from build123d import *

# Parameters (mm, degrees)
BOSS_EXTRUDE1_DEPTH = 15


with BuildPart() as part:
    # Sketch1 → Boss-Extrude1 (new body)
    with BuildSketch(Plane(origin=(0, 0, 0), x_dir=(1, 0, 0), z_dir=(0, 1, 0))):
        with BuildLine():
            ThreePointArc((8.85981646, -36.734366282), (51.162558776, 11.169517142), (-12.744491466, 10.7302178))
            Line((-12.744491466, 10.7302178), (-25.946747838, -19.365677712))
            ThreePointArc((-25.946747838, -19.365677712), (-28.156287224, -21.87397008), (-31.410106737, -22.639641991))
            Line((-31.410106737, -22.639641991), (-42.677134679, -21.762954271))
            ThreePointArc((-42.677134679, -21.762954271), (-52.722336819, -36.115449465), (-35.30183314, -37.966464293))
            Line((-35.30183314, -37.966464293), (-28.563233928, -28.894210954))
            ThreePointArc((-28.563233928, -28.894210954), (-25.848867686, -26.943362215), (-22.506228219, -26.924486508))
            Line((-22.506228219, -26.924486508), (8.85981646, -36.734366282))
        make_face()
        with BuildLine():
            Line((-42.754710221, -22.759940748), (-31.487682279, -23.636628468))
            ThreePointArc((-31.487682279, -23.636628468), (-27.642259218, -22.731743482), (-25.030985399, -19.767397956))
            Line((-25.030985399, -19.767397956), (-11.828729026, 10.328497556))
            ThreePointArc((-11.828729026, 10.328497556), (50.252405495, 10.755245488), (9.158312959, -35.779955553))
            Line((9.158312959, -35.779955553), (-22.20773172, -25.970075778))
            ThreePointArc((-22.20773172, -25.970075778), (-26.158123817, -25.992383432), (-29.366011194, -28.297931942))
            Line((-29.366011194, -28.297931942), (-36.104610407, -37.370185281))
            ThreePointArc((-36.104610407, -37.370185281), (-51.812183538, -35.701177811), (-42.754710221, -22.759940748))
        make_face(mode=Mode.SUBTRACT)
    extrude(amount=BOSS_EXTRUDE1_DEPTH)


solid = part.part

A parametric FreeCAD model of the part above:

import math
import FreeCAD as App
import Part
import Sketcher
from FreeCAD import Vector
Q = App.Units.Quantity

doc = App.newDocument("Part")
body = doc.addObject("PartDesign::Body", "Body")

# Sketch on XZ plane
sketch1 = body.newObject("Sketcher::SketchObject", "Sketch")
sketch1.AttachmentSupport = (doc.getObject("XZ_Plane"), [""])
sketch1.MapMode = "FlatFace"
sketch1.addGeometry([
    Part.ArcOfCircle(Part.Circle(Vector(19, 3, 0), Vector(0, 0, 1), 35), math.radians(-156), math.radians(107)),  # 0
    Part.LineSegment(Vector(-13, -11, 0), Vector(-26, 19, 0)),  # 1
    Part.ArcOfCircle(Part.Circle(Vector(-31, 17, 0), Vector(0, 0, 1), 6), math.radians(24), math.radians(94)),  # 2
    Part.LineSegment(Vector(-31, 23, 0), Vector(-43, 22, 0)),  # 3
    Part.ArcOfCircle(Part.Circle(Vector(-43, 32, 0), Vector(0, 0, 1), 10), math.radians(37), math.radians(274)),  # 4
    Part.LineSegment(Vector(-35, 38, 0), Vector(-29, 29, 0)),  # 5
    Part.ArcOfCircle(Part.Circle(Vector(-24, 32, 0), Vector(0, 0, 1), 5), math.radians(-143), math.radians(-73)),  # 6
    Part.LineSegment(Vector(-23, 27, 0), Vector(9, 37, 0)),  # 7
    Part.ArcOfCircle(Part.Circle(Vector(-43, 32, 0), Vector(0, 0, 1), 9), math.radians(37), math.radians(274)),  # 8
    Part.LineSegment(Vector(-43, 23, 0), Vector(-31, 24, 0)),  # 9
    Part.ArcOfCircle(Part.Circle(Vector(-31, 17, 0), Vector(0, 0, 1), 6), math.radians(24), math.radians(94)),  # 10
    Part.LineSegment(Vector(-25, 20, 0), Vector(-12, -10, 0)),  # 11
    Part.ArcOfCircle(Part.Circle(Vector(19, 3, 0), Vector(0, 0, 1), 34), math.radians(-156), math.radians(107)),  # 12
    Part.LineSegment(Vector(9, 36, 0), Vector(-22, 26, 0)),  # 13
    Part.ArcOfCircle(Part.Circle(Vector(-24, 32, 0), Vector(0, 0, 1), 6), math.radians(-143), math.radians(-73)),  # 14
    Part.LineSegment(Vector(-29, 28, 0), Vector(-36, 37, 0)),  # 15
], False)
sketch1.addConstraint([
    Sketcher.Constraint("Tangent", 0, 1, 1, 1),
    Sketcher.Constraint("Tangent", 1, 2, 2, 1),
    Sketcher.Constraint("Tangent", 2, 2, 3, 1),
    Sketcher.Constraint("Tangent", 3, 2, 4, 2),
    Sketcher.Constraint("Tangent", 4, 1, 5, 1),
    Sketcher.Constraint("Tangent", 5, 2, 6, 1),
    Sketcher.Constraint("Tangent", 6, 2, 7, 1),
    Sketcher.Constraint("Tangent", 7, 2, 0, 2),
    Sketcher.Constraint("Tangent", 8, 2, 9, 1),
    Sketcher.Constraint("Tangent", 9, 2, 10, 2),
    Sketcher.Constraint("Tangent", 10, 1, 11, 1),
    Sketcher.Constraint("Tangent", 11, 2, 12, 1),
    Sketcher.Constraint("Tangent", 12, 2, 13, 1),
    Sketcher.Constraint("Tangent", 13, 2, 14, 2),
    Sketcher.Constraint("Tangent", 14, 1, 15, 1),
    Sketcher.Constraint("Tangent", 15, 2, 8, 1),
    Sketcher.Constraint("Coincident", 8, 3, 4, 3),
    Sketcher.Constraint("Coincident", 10, 3, 2, 3),
    Sketcher.Constraint("Coincident", 12, 3, 0, 3),
    Sketcher.Constraint("Coincident", 14, 3, 6, 3),
    Sketcher.Constraint("Equal", 2, 6),
    Sketcher.Constraint("Equal", 10, 14),
    Sketcher.Constraint("Parallel", 3, 9),
    Sketcher.Constraint("Parallel", 1, 11),
    Sketcher.Constraint("Equal", 3, 5),
    Sketcher.Constraint("Equal", 1, 7),
    Sketcher.Constraint("Radius", 0, Q("35 mm")),
    Sketcher.Constraint("Radius", 12, Q("34 mm")),
    Sketcher.Constraint("Radius", 2, Q("5.5 mm")),
    Sketcher.Constraint("Radius", 4, Q("10.17 mm")),
    Sketcher.Constraint("DistanceX", 4, 1, 5, 2, Q("6.738599 mm")),
    Sketcher.Constraint("DistanceY", 2, 2, 8, 2, Q("0.120299 mm")),
    Sketcher.Constraint("DistanceY", -1, 1, 0, 3, Q("3.329991 mm")),
    Sketcher.Constraint("DistanceX", 2, 3, -1, 1, Q("30.983441 mm")),
    Sketcher.Constraint("DistanceX", 6, 3, -1, 1, Q("24.147959 mm")),
    Sketcher.Constraint("DistanceX", 0, 1, -1, 1, Q("12.744491 mm")),
])
pad1 = body.newObject("PartDesign::Pad", "Pad")
pad1.Profile = sketch1
pad1.Length = 15
pad1.Reversed = True

doc.recompute()
